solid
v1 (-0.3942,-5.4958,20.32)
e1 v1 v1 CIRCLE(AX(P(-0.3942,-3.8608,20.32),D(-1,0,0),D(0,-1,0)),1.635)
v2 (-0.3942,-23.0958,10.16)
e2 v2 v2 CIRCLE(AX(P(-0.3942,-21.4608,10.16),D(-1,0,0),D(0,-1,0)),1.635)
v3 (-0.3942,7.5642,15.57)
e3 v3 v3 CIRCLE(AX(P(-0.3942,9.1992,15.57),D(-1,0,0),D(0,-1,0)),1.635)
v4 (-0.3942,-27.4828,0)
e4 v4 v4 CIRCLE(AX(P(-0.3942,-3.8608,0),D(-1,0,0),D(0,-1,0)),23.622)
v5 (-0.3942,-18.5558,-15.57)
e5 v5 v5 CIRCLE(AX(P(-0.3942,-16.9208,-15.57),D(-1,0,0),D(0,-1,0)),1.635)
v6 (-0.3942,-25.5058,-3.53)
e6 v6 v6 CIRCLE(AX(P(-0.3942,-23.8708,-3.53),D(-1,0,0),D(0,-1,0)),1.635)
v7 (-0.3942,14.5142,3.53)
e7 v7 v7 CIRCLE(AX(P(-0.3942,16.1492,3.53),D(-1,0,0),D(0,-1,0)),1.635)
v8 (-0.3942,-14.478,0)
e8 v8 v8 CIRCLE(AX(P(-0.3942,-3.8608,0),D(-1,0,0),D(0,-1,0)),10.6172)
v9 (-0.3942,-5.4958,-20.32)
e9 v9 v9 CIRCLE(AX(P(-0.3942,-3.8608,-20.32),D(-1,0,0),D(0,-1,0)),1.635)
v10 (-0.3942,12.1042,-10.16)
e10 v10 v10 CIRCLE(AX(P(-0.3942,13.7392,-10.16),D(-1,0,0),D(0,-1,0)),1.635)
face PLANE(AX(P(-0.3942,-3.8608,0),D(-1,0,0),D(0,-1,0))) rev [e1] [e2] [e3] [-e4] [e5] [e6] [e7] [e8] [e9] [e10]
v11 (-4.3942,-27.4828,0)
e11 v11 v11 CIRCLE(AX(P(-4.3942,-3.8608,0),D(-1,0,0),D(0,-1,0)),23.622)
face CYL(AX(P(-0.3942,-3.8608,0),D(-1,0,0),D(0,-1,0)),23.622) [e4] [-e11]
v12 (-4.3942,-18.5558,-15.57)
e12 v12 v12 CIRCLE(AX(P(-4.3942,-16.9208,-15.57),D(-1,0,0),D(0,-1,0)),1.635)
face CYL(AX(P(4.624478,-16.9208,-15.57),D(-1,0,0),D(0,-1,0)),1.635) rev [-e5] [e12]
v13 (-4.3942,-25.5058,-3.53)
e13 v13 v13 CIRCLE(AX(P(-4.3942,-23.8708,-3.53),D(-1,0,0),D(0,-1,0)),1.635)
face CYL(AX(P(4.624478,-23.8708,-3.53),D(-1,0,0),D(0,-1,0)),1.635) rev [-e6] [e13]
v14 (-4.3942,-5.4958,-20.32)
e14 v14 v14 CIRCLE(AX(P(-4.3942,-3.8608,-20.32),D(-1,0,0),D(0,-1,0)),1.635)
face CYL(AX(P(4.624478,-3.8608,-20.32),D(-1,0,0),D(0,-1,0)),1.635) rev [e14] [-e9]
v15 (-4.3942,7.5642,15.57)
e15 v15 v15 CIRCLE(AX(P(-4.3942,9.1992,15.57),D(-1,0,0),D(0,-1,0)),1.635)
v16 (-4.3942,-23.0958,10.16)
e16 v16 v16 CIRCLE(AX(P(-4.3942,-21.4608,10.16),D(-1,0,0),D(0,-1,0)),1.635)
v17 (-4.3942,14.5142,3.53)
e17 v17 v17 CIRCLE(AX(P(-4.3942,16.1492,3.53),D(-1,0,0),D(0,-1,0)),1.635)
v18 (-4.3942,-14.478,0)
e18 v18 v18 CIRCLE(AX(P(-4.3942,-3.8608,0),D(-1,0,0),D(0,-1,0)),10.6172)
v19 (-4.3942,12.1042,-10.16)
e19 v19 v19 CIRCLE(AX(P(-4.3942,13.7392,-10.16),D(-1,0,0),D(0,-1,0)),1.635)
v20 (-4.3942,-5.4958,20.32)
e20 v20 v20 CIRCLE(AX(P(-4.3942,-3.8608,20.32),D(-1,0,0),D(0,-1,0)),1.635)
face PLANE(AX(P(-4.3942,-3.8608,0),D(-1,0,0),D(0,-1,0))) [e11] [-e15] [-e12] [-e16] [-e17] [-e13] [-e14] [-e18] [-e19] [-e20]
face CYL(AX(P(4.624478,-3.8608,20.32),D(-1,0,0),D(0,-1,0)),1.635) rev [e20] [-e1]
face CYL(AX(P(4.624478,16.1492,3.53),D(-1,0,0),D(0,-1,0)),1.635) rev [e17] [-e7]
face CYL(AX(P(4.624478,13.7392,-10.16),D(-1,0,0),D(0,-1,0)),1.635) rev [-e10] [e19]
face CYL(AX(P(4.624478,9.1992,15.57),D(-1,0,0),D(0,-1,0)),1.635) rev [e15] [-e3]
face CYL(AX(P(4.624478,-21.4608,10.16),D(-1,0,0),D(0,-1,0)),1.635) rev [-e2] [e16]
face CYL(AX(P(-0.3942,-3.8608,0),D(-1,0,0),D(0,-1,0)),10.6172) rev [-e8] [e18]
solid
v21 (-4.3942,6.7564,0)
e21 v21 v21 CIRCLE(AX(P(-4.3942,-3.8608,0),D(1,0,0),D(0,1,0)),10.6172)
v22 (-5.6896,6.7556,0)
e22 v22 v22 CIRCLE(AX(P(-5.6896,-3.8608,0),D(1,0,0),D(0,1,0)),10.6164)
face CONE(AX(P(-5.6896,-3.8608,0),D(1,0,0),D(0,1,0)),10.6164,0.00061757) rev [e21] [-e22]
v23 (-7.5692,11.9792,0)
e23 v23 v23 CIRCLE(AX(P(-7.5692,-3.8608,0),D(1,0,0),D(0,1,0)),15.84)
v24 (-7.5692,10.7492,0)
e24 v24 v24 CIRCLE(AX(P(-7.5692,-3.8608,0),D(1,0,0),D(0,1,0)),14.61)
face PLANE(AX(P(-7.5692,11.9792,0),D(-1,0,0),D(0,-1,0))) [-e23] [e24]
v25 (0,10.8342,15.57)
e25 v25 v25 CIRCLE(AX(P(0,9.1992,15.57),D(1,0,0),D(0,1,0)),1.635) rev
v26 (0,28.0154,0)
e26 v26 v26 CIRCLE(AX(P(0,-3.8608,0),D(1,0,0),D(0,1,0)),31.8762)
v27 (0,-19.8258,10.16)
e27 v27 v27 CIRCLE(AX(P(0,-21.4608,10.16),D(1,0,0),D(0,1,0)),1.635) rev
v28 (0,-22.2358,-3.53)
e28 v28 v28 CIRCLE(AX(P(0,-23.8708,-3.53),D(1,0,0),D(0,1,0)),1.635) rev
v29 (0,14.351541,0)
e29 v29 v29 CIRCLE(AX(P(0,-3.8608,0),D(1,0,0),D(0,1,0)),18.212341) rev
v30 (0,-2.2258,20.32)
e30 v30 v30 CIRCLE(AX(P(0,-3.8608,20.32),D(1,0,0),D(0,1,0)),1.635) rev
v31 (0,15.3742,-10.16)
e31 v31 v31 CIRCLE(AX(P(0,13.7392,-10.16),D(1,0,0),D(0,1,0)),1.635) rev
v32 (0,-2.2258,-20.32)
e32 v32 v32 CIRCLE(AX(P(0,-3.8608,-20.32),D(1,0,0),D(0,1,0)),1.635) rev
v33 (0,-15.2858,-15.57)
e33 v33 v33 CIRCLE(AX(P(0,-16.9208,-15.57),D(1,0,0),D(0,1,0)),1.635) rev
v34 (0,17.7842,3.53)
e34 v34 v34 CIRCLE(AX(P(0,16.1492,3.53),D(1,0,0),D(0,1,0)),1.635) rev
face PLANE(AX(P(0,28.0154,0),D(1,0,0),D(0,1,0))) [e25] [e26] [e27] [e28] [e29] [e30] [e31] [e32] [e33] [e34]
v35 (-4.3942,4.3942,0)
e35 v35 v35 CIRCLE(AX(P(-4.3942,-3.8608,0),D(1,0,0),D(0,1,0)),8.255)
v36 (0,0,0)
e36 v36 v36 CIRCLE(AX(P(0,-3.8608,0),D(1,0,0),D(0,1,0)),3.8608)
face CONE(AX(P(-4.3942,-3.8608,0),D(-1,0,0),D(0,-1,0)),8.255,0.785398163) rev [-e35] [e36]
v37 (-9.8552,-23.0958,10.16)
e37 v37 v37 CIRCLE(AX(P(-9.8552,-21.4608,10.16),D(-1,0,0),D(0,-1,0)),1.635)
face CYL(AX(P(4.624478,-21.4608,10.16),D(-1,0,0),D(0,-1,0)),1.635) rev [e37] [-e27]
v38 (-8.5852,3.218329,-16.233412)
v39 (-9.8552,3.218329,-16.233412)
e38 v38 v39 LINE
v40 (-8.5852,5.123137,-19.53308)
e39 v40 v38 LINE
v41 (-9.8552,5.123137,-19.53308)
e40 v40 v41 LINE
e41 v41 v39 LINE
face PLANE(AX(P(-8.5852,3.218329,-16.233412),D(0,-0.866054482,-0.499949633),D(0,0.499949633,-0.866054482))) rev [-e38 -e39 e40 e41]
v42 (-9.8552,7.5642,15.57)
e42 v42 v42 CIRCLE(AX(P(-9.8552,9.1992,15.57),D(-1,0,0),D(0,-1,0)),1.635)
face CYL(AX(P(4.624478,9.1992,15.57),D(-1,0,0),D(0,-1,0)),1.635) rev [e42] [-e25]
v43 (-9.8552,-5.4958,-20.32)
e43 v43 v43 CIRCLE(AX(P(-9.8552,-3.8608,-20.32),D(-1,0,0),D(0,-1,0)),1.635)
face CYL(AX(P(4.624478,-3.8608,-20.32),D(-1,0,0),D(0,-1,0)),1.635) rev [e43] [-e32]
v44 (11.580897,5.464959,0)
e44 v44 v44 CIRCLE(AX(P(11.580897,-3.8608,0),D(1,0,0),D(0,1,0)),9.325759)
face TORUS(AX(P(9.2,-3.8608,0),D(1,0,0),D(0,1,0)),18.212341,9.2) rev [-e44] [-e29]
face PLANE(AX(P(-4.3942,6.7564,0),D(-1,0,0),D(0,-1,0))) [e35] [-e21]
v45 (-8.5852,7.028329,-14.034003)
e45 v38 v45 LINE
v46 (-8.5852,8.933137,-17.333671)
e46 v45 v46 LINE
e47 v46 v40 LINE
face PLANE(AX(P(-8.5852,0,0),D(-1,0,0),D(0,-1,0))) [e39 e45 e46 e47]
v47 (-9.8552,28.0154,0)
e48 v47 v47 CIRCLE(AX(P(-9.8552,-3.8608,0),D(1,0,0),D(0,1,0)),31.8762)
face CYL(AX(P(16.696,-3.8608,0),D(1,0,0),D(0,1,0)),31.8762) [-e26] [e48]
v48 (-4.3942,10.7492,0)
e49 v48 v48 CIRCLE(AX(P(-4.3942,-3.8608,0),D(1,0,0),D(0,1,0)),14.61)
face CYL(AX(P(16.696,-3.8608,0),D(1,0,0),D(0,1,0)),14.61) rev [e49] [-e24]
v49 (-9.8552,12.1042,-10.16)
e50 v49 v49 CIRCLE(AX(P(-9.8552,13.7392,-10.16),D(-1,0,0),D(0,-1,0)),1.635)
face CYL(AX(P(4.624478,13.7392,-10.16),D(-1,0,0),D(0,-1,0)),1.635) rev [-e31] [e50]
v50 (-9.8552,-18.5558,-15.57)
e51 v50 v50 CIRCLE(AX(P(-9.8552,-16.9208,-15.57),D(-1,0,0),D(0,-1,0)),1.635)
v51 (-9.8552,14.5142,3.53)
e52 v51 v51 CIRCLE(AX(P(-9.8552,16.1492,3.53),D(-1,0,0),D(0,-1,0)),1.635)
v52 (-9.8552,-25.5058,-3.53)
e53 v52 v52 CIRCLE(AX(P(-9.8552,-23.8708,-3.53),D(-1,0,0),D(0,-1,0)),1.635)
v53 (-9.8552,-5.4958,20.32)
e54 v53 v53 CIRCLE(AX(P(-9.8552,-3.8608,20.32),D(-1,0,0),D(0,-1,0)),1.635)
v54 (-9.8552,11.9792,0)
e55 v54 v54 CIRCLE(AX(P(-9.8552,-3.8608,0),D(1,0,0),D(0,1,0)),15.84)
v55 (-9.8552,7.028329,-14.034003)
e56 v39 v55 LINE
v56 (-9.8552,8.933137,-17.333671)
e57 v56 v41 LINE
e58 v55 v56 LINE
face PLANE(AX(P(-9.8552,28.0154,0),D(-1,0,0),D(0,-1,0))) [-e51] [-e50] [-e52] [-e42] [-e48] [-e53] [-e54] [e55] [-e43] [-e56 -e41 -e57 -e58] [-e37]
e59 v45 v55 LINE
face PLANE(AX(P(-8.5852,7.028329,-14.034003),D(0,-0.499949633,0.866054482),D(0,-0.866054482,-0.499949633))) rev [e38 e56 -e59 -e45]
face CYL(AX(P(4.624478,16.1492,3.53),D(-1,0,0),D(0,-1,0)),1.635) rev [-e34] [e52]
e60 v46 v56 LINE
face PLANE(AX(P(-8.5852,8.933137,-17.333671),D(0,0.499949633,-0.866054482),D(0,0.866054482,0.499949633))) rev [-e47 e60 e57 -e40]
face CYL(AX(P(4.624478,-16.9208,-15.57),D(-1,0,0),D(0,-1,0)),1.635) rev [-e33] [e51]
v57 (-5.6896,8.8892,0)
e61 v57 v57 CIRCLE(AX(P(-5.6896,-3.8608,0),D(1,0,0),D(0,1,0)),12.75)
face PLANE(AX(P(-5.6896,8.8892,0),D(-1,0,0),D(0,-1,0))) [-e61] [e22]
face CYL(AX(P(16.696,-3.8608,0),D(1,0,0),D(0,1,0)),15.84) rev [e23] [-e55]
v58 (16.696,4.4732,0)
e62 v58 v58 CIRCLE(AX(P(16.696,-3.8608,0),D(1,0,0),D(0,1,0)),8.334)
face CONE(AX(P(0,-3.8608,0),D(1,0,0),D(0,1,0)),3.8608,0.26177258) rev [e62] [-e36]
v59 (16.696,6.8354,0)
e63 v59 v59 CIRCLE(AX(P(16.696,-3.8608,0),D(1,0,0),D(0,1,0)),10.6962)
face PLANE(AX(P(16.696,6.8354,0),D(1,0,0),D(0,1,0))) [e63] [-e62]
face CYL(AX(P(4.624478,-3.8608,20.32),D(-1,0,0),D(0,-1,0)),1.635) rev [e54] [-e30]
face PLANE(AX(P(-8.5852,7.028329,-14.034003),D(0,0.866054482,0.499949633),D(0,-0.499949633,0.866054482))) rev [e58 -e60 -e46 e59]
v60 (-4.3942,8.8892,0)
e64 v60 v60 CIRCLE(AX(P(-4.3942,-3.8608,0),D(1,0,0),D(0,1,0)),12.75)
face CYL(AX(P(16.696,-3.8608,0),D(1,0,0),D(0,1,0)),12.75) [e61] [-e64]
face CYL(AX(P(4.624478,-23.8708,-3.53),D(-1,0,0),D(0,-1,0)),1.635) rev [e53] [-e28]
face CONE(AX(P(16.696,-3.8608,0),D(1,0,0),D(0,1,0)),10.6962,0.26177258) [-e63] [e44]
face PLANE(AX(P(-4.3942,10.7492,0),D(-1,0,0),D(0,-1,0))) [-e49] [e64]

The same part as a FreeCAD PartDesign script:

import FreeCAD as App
import Part
import Sketcher
from FreeCAD import Vector
Q = App.Units.Quantity


def edges_at(feature, points):
    """Names of the edges that pass closest to the given points."""
    edges = feature.Shape.Edges
    near = lambda p: min(range(len(edges)), key=lambda i: edges[i].distToShape(Part.Vertex(*p))[0])
    return sorted({f"Edge{near(p) + 1}" for p in points})


def add_polygon(sketch, points):
    """Adds a closed chain of lines whose ends are joined by coincident constraints."""
    first, n = sketch.GeometryCount, len(points)
    for a, b in zip(points, points[1:] + points[:1]):
        sketch.addGeometry(Part.LineSegment(App.Vector(*a, 0), App.Vector(*b, 0)), False)
    for i in range(n):
        sketch.addConstraint(Sketcher.Constraint("Coincident", first + i, 2, first + (i + 1) % n, 1))

doc = App.newDocument("Part")
params = doc.addObject("Spreadsheet::Sheet", "Params")
for row, (alias, value) in enumerate([
    ("sketch1_width", "0.09 in"),
    ("sketch1_width2", "0.388 in"),
    ("sketch1_width3", "0.125 in"),
    ("sketch1_width4", "0.051 in"),
    ("sketch1_height", "0.093 in"),
    ("revolution_angle", "360 deg"),
    ("sketch2_diameter", "1.86 in"),
    ("sketch2_diameter2", "0.836 in"),
    ("pad1_length", "4 mm"),
    ("pad2_length", "0.388 in"),
    ("fillet_radius", "9.2 mm"),
    ("sketch4_length", "0.15 in"),
    ("pocket1_length", "0.05 in"),
], start=1):
    params.set(f"A{row}", alias)
    params.set(f"B{row}", "=" + value)
    params.setAlias(f"B{row}", alias)

body = doc.addObject("PartDesign::Body", "Body")

# Sketch on XY plane
sketch1 = doc.addObject("Sketcher::SketchObject", "Sketch")
body.addObject(sketch1)
sketch1.AttachmentSupport = (doc.XY_Plane, [""])
sketch1.MapMode = "FlatFace"
add_polygon(sketch1, [(-4.4, 4.4), (0, 0), (16.7, 4.5), (16.7, 6.8), (0, 2.4), (0, 28), (-9.9, 28), (-9.9, 12), (-7.6, 12), (-7.6, 10.7), (-4.4, 10.7), (-4.4, 8.9), (-5.7, 8.9), (-5.7, 6.8), (-4.4, 6.8)])  # lines 0-14
sketch1.addGeometry(Part.LineSegment(Vector(16.7, -3.9, 0), Vector(-9.9, -3.9, 0)), True)  # axis
sketch1.addConstraint(Sketcher.Constraint("Vertical", 2))
sketch1.addConstraint(Sketcher.Constraint("Vertical", 4))
sketch1.addConstraint(Sketcher.Constraint("Horizontal", 5))
sketch1.addConstraint(Sketcher.Constraint("Vertical", 6))
sketch1.addConstraint(Sketcher.Constraint("Horizontal", 7))
sketch1.addConstraint(Sketcher.Constraint("Vertical", 8))
sketch1.addConstraint(Sketcher.Constraint("Horizontal", 9))
sketch1.addConstraint(Sketcher.Constraint("Vertical", 10))
sketch1.addConstraint(Sketcher.Constraint("Horizontal", 11))
sketch1.addConstraint(Sketcher.Constraint("Vertical", 12))
sketch1.addConstraint(Sketcher.Constraint("Vertical", 14))
sketch1.addConstraint(Sketcher.Constraint("Horizontal", 15))
sketch1.addConstraint(Sketcher.Constraint("Coincident", 0, 2, -1, 1))
sketch1.addConstraint(Sketcher.Constraint("PointOnObject", 3, 2, -2))
sketch1.addConstraint(Sketcher.Constraint("Parallel", 1, 3))
sketch1.addConstraint(Sketcher.Constraint("Vertical", 10, 2, 13, 2))
sketch1.addConstraint(Sketcher.Constraint("Vertical", 2, 2, 15, 1))
sketch1.addConstraint(Sketcher.Constraint("Vertical", 6, 2, 15, 2))
sketch1.addConstraint(Sketcher.Constraint("Equal", 2, 14))
sketch1.addConstraint(Sketcher.Constraint("Angle", 0, Q("-45 deg")))
sketch1.addConstraint(Sketcher.Constraint("DistanceX", 7, 1, 7, 2, Q("0.09 in")))
sketch1.addConstraint(Sketcher.Constraint("DistanceX", 5, 2, 5, 1, Q("0.388 in")))
sketch1.addConstraint(Sketcher.Constraint("DistanceX", 9, 1, 9, 2, Q("0.125 in")))
sketch1.addConstraint(Sketcher.Constraint("DistanceX", 11, 2, 11, 1, Q("0.051 in")))
sketch1.addConstraint(Sketcher.Constraint("DistanceY", 2, 1, 2, 2, Q("0.093 in")))
sketch1.addConstraint(Sketcher.Constraint("DistanceY", 12, 2, 12, 1, Q("0.084 in")))
sketch1.addConstraint(Sketcher.Constraint("DistanceY", 15, 1, -1, 1, Q("0.152 in")))
sketch1.addConstraint(Sketcher.Constraint("DistanceX", 15, 2, 15, 1, 26.5512))
sketch1.addConstraint(Sketcher.Constraint("DistanceY", 4, 1, 4, 2, 25.6532))
sketch1.addConstraint(Sketcher.Constraint("DistanceY", 6, 2, 6, 1, 16.0362))
sketch1.addConstraint(Sketcher.Constraint("DistanceY", 8, 2, 8, 1, 1.23))
sketch1.addConstraint(Sketcher.Constraint("DistanceY", 10, 2, 10, 1, 1.86))
sketch1.addConstraint(Sketcher.Constraint("DistanceY", -1, 1, 1, 2, 4.4732))
sketch1.setExpression("Constraints[35]", "Params.sketch1_width")
sketch1.setExpression("Constraints[36]", "Params.sketch1_width2")
sketch1.setExpression("Constraints[37]", "Params.sketch1_width3")
sketch1.setExpression("Constraints[38]", "Params.sketch1_width4")
sketch1.setExpression("Constraints[39]", "Params.sketch1_height")
revolution = doc.addObject("PartDesign::Revolution", "Revolution")
body.addObject(revolution)
revolution.Profile = sketch1
revolution.ReferenceAxis = (sketch1, ["Axis0"])
revolution.setExpression("Angle", "Params.revolution_angle")
body2 = doc.addObject("PartDesign::Body", "Body001")

# Sketch on YZ plane
sketch2 = doc.addObject("Sketcher::SketchObject", "Sketch001")
body2.addObject(sketch2)
sketch2.AttachmentSupport = (doc.getObject("YZ_Plane001"), [""])
sketch2.MapMode = "FlatFace"
sketch2.AttachmentOffset = App.Placement(Vector(0, 0, -0.173 * 25.4), App.Rotation())
sketch2.addGeometry(Part.Circle(Vector(-4, 0, 0), Vector(0, 0, 1), 24), False)
sketch2.addGeometry(Part.Circle(Vector(-4, 0, 0), Vector(0, 0, 1), 11), False)
sketch2.addConstraint(Sketcher.Constraint("Coincident", 1, 3, 0, 3))
sketch2.addConstraint(Sketcher.Constraint("PointOnObject", 0, 3, -1))
sketch2.addConstraint(Sketcher.Constraint("Diameter", 0, Q("1.86 in")))
sketch2.addConstraint(Sketcher.Constraint("Diameter", 1, Q("0.836 in")))
sketch2.addConstraint(Sketcher.Constraint("DistanceX", 0, 3, -1, 1, Q("0.152 in")))
sketch2.setExpression("Constraints[2]", "Params.sketch2_diameter")
sketch2.setExpression("Constraints[3]", "Params.sketch2_diameter2")
pad1 = doc.addObject("PartDesign::Pad", "Pad")
body2.addObject(pad1)
pad1.Profile = sketch2
pad1.setExpression("Length", "Params.pad1_length")
body3 = doc.addObject("PartDesign::Body", "Body002")
body3.AllowCompound = True

# Sketch on YZ plane
sketch3 = doc.addObject("Sketcher::SketchObject", "Sketch002")
body3.addObject(sketch3)
sketch3.AttachmentSupport = (doc.getObject("YZ_Plane002"), [""])
sketch3.MapMode = "FlatFace"
sketch3.addGeometry(Part.Circle(Vector(13.7, -10.2, 0), Vector(0, 0, 1), 1.6), False)
sketch3.addGeometry(Part.Circle(Vector(16.1, 3.5, 0), Vector(0, 0, 1), 1.6), False)
sketch3.addGeometry(Part.Circle(Vector(-3.9, 20.3, 0), Vector(0, 0, 1), 1.6), False)
sketch3.addGeometry(Part.Circle(Vector(-21.5, 10.2, 0), Vector(0, 0, 1), 1.6), False)
sketch3.addGeometry(Part.Circle(Vector(-23.9, -3.5, 0), Vector(0, 0, 1), 1.6), False)
sketch3.addGeometry(Part.Circle(Vector(-16.9, -15.6, 0), Vector(0, 0, 1), 1.6), False)
sketch3.addGeometry(Part.Circle(Vector(-3.9, -20.3, 0), Vector(0, 0, 1), 1.6), False)
sketch3.addGeometry(Part.Circle(Vector(9.2, 15.6, 0), Vector(0, 0, 1), 1.6), False)
sketch3.addConstraint(Sketcher.Constraint("Equal", 0, 1))
sketch3.addConstraint(Sketcher.Constraint("Equal", 1, 2))
sketch3.addConstraint(Sketcher.Constraint("Equal", 2, 3))
sketch3.addConstraint(Sketcher.Constraint("Equal", 3, 4))
sketch3.addConstraint(Sketcher.Constraint("Equal", 4, 5))
sketch3.addConstraint(Sketcher.Constraint("Equal", 5, 6))
sketch3.addConstraint(Sketcher.Constraint("Equal", 6, 7))
sketch3.addConstraint(Sketcher.Constraint("Symmetric", 2, 3, 6, 3, -1))
sketch3.addConstraint(Sketcher.Constraint("DistanceY", 0, 3, -1, 1, Q("0.4 in")))
sketch3.addConstraint(Sketcher.Constraint("DistanceY", -1, 1, 2, 3, Q("0.8 in")))
sketch3.addConstraint(Sketcher.Constraint("DistanceY", -1, 1, 3, 3, Q("0.4 in")))
sketch3.addConstraint(Sketcher.Constraint("Diameter", 0, 3.27))
sketch3.addConstraint(Sketcher.Constraint("DistanceX", 2, 3, -1, 1, Q("0.152 in")))
sketch3.addConstraint(Sketcher.Constraint("DistanceX", -1, 1, 0, 3, 13.7392))
sketch3.addConstraint(Sketcher.Constraint("DistanceX", -1, 1, 1, 3, 16.1492))
sketch3.addConstraint(Sketcher.Constraint("DistanceY", -1, 1, 1, 3, 3.53))
sketch3.addConstraint(Sketcher.Constraint("DistanceX", 3, 3, -1, 1, 21.4608))
sketch3.addConstraint(Sketcher.Constraint("DistanceX", 4, 3, -1, 1, 23.8708))
sketch3.addConstraint(Sketcher.Constraint("DistanceY", 4, 3, -1, 1, 3.53))
sketch3.addConstraint(Sketcher.Constraint("DistanceX", 5, 3, -1, 1, 16.9208))
sketch3.addConstraint(Sketcher.Constraint("DistanceY", 5, 3, -1, 1, 15.57))
sketch3.addConstraint(Sketcher.Constraint("DistanceX", -1, 1, 7, 3, 9.1992))
sketch3.addConstraint(Sketcher.Constraint("DistanceY", -1, 1, 7, 3, 15.57))
pad2 = doc.addObject("PartDesign::Pad", "Pad001")
body3.addObject(pad2)
pad2.Profile = sketch3
pad2.setExpression("Length", "Params.pad2_length")
pad2.Reversed = True
doc.recompute()

body4 = doc.addObject("PartDesign::Body", "Body003")
body4.BaseFeature = body3
boolean = doc.addObject("PartDesign::Boolean", "Boolean")
body.addObject(boolean)
boolean.Type = "Cut"
boolean.addObjects([body4])
doc.recompute()

fillet = doc.addObject("PartDesign::Fillet", "Fillet")
body.addObject(fillet)
fillet.Base = (boolean, edges_at(boolean, [(0, -10.084, 0)]))
fillet.setExpression("Radius", "Params.fillet_radius")

# Sketch on YZ plane
sketch4 = doc.addObject("Sketcher::SketchObject", "Sketch003")
body.addObject(sketch4)
sketch4.AttachmentSupport = (doc.YZ_Plane, [""])
sketch4.MapMode = "FlatFace"
sketch4.AttachmentOffset = App.Placement(Vector(0, 0, -0.388 * 25.4), App.Rotation())
add_polygon(sketch4, [(3.2, -16.2), (7, -14), (8.9, -17.3), (5.1, -19.5)])  # lines 0-3
sketch4.addConstraint(Sketcher.Constraint("Perpendicular", 0, 1))
sketch4.addConstraint(Sketcher.Constraint("Perpendicular", 1, 2))
sketch4.addConstraint(Sketcher.Constraint("Perpendicular", 2, 3))
sketch4.addConstraint(Sketcher.Constraint("Distance", 1, Q("0.15 in")))
sketch4.addConstraint(Sketcher.Constraint("DistanceX", 2, 2, 1, 2, Q("0.15 in")))
sketch4.addConstraint(Sketcher.Constraint("Distance", 0, 4.399261))
sketch4.addConstraint(Sketcher.Constraint("DistanceX", -1, 1, 0, 2, 7.028329))
sketch4.addConstraint(Sketcher.Constraint("DistanceY", 1, 2, -1, 1, 17.333671))
sketch4.setExpression("Constraints[7]", "Params.sketch4_length")
pocket1 = doc.addObject("PartDesign::Pocket", "Pocket")
body.addObject(pocket1)
pocket1.Profile = sketch4
pocket1.setExpression("Length", "Params.pocket1_length")
pocket1.Reversed = True
doc.recompute()

boolean2 = doc.addObject("PartDesign::Boolean", "Boolean001")
body2.addObject(boolean2)
boolean2.Type = "Cut"
boolean2.addObjects([body3])

doc.recompute()
